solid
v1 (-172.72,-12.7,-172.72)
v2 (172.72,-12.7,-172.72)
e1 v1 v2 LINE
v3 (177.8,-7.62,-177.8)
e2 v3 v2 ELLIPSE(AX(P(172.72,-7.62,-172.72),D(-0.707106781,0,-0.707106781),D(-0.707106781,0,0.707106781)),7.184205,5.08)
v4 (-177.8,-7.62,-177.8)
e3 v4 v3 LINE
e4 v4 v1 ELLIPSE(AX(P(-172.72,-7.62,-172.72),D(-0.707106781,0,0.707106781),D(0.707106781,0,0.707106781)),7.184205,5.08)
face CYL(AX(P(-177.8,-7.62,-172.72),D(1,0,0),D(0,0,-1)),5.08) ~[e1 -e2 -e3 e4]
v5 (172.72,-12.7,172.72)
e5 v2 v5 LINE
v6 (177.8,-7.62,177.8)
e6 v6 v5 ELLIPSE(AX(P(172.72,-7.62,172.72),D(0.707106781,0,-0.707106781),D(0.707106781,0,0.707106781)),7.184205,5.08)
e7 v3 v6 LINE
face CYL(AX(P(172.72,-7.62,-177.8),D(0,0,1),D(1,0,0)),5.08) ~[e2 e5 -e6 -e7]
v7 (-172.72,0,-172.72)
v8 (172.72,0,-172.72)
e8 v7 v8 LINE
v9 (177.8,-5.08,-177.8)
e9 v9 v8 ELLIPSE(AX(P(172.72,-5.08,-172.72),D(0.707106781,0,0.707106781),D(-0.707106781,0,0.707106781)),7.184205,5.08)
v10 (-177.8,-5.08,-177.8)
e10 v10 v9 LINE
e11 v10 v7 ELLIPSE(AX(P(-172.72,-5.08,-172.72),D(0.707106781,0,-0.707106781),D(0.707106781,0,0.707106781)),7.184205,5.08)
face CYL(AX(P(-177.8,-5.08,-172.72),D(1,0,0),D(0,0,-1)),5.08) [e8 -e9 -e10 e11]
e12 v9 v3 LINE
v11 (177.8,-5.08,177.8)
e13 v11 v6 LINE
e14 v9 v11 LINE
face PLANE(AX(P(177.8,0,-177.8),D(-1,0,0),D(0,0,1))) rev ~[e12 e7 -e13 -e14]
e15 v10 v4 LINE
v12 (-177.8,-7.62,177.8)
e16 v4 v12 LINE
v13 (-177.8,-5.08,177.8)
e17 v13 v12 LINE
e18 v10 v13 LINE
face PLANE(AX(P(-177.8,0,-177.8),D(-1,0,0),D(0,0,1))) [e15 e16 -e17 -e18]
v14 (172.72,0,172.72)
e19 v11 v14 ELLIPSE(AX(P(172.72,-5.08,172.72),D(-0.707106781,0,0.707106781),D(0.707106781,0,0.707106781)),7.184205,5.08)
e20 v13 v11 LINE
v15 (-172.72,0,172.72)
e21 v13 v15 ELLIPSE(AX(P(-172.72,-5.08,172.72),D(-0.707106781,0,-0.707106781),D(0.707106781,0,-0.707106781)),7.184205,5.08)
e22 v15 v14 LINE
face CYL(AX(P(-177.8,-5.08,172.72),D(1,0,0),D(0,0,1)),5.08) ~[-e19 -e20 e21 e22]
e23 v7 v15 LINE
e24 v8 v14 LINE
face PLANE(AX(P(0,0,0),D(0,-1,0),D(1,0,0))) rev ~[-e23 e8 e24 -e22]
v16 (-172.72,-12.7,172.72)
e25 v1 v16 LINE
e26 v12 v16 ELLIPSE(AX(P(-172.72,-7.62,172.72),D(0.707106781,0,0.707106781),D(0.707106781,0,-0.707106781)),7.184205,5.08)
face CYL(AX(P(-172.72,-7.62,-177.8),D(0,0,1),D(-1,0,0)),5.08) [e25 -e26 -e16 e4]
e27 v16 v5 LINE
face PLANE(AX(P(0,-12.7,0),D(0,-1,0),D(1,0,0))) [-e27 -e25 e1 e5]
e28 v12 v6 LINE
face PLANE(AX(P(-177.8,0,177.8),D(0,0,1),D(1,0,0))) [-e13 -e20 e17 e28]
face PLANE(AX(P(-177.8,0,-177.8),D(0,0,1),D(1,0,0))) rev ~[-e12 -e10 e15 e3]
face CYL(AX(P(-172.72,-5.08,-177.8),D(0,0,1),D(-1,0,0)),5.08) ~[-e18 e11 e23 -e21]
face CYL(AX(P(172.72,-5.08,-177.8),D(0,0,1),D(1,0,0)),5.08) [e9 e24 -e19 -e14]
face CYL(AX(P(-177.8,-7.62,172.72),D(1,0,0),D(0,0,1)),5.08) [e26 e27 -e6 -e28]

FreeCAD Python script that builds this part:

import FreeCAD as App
import Part
import Sketcher
Q = App.Units.Quantity


def edges_at(feature, points):
    """Names of the edges that pass closest to the given points."""
    edges = feature.Shape.Edges
    near = lambda p: min(range(len(edges)), key=lambda i: edges[i].distToShape(Part.Vertex(*p))[0])
    return sorted({f"Edge{near(p) + 1}" for p in points})

doc = App.newDocument("Part")
body = doc.addObject("PartDesign::Body", "Body")

# Sketch on XZ plane
sketch1 = doc.addObject("Sketcher::SketchObject", "Sketch")
body.addObject(sketch1)
sketch1.AttachmentSupport = (doc.XZ_Plane, [""])
sketch1.MapMode = "FlatFace"
sketch1.addGeometry(Part.LineSegment(App.Vector(-177.8, 177.8, 0), App.Vector(-177.8, -177.8, 0)), False)
sketch1.addGeometry(Part.LineSegment(App.Vector(-177.8, -177.8, 0), App.Vector(177.8, -177.8, 0)), False)
sketch1.addGeometry(Part.LineSegment(App.Vector(177.8, -177.8, 0), App.Vector(177.8, 177.8, 0)), False)
sketch1.addGeometry(Part.LineSegment(App.Vector(177.8, 177.8, 0), App.Vector(-177.8, 177.8, 0)), False)
sketch1.addConstraint(Sketcher.Constraint("Coincident", 0, 2, 1, 1))
sketch1.addConstraint(Sketcher.Constraint("Coincident", 1, 2, 2, 1))
sketch1.addConstraint(Sketcher.Constraint("Coincident", 2, 2, 3, 1))
sketch1.addConstraint(Sketcher.Constraint("Coincident", 3, 2, 0, 1))
sketch1.addConstraint(Sketcher.Constraint("Vertical", 0))
sketch1.addConstraint(Sketcher.Constraint("Horizontal", 1))
sketch1.addConstraint(Sketcher.Constraint("Vertical", 2))
sketch1.addConstraint(Sketcher.Constraint("Horizontal", 3))
sketch1.addConstraint(Sketcher.Constraint("Symmetric", 0, 2, 2, 2, -1, 1))
sketch1.addConstraint(Sketcher.Constraint("Equal", 3, 0))
sketch1.addConstraint(Sketcher.Constraint("DistanceX", 1, 1, 1, 2, Q("14 in")))
pad1 = doc.addObject("PartDesign::Pad", "Pad")
body.addObject(pad1)
pad1.Profile = sketch1
pad1.Length = Q("0.5 in")
doc.recompute()

fillet = doc.addObject("PartDesign::Fillet", "Fillet")
body.addObject(fillet)
fillet.Base = (pad1, edges_at(pad1, [
    (177.8, -12.7, 0),
    (0, -12.7, 177.8),
    (-177.8, -12.7, 0),
    (0, -12.7, -177.8),
    (177.8, 0, 0),
    (0, 0, 177.8),
    (-177.8, 0, 0),
    (0, 0, -177.8),
]))
fillet.Radius = Q("0.2 in")

doc.recompute()
